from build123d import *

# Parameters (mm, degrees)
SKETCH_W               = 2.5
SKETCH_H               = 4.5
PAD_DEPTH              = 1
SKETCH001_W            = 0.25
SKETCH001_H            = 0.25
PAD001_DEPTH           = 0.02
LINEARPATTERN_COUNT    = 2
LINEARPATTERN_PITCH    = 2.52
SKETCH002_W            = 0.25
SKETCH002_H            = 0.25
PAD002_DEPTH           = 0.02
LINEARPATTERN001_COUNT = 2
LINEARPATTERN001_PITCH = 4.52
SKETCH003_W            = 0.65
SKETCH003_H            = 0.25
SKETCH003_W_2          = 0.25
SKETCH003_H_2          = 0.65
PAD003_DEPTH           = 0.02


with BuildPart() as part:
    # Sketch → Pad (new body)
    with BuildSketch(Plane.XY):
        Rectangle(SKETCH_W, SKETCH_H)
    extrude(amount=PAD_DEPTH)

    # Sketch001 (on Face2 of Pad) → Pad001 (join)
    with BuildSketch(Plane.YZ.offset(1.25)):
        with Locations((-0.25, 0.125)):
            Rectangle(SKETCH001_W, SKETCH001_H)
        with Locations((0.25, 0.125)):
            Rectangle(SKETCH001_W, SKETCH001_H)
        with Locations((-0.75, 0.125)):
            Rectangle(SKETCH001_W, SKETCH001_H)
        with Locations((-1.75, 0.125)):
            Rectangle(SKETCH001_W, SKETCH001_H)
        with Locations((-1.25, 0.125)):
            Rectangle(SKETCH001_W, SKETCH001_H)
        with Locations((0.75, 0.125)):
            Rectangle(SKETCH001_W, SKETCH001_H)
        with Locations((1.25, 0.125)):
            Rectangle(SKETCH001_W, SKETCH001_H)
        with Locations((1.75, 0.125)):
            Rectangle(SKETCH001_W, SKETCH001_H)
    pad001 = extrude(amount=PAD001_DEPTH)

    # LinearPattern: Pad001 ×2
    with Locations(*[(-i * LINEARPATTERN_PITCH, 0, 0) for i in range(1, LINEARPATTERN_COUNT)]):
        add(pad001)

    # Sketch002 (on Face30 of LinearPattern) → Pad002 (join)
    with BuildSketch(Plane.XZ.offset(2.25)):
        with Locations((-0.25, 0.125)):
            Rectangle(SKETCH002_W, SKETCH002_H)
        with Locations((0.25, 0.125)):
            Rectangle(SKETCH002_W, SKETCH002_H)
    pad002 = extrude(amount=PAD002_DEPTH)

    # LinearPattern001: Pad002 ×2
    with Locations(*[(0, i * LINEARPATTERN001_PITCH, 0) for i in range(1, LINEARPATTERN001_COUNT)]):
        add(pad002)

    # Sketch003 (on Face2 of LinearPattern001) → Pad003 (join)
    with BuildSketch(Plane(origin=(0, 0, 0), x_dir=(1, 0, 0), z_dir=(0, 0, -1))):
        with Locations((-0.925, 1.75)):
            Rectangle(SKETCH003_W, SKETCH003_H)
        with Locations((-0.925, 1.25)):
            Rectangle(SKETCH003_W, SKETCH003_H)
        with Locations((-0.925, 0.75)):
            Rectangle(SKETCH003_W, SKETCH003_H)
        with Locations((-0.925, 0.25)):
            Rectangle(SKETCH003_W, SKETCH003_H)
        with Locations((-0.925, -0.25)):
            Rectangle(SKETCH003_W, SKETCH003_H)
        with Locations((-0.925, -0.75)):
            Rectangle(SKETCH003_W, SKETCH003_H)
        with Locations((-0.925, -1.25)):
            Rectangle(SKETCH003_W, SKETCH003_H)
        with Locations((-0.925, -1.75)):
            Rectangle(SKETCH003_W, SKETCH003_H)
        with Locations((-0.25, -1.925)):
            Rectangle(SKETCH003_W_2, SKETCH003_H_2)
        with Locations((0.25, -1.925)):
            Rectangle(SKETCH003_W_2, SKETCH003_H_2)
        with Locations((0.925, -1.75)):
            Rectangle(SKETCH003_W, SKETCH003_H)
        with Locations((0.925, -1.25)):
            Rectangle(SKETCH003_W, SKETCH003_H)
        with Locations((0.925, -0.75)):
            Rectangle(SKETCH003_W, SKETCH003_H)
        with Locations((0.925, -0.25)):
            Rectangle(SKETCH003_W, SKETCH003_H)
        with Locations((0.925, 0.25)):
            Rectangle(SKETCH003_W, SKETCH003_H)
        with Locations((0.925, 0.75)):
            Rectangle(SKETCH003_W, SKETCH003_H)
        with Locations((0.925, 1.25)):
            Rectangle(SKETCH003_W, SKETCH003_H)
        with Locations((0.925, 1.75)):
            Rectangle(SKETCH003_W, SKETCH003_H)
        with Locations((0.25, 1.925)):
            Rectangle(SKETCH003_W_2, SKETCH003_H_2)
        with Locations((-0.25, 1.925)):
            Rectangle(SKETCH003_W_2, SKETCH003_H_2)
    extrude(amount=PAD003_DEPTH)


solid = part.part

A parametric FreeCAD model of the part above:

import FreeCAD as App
import Part
import Sketcher
from FreeCAD import Vector
Q = App.Units.Quantity

doc = App.newDocument("Part")
body = doc.addObject("PartDesign::Body", "Body")

sketch1 = doc.addObject("Sketcher::SketchObject", "Sketch")
body.addObject(sketch1)
sketch1.AttachmentSupport = (doc.XY_Plane, [""])
sketch1.MapMode = "FlatFace"
sketch1.addGeometry(Part.LineSegment(Vector(-1.2, 2.2, 0), Vector(-1.2, -2.2, 0)), False)
sketch1.addGeometry(Part.LineSegment(Vector(-1.2, -2.2, 0), Vector(1.2, -2.2, 0)), False)
sketch1.addGeometry(Part.LineSegment(Vector(1.2, -2.2, 0), Vector(1.2, 2.2, 0)), False)
sketch1.addGeometry(Part.LineSegment(Vector(1.2, 2.2, 0), Vector(-1.2, 2.2, 0)), False)
sketch1.addConstraint(Sketcher.Constraint("Coincident", 0, 2, 1, 1))
sketch1.addConstraint(Sketcher.Constraint("Coincident", 1, 2, 2, 1))
sketch1.addConstraint(Sketcher.Constraint("Coincident", 2, 2, 3, 1))
sketch1.addConstraint(Sketcher.Constraint("Coincident", 3, 2, 0, 1))
sketch1.addConstraint(Sketcher.Constraint("Vertical", 0))
sketch1.addConstraint(Sketcher.Constraint("Horizontal", 1))
sketch1.addConstraint(Sketcher.Constraint("Vertical", 2))
sketch1.addConstraint(Sketcher.Constraint("Horizontal", 3))
sketch1.addConstraint(Sketcher.Constraint("Symmetric", 0, 2, 2, 2, -1, 1))
sketch1.addConstraint(Sketcher.Constraint("DistanceX", 1, 1, 1, 2, Q("2.5 mm")))
sketch1.addConstraint(Sketcher.Constraint("DistanceY", 0, 2, 0, 1, Q("4.5 mm")))
pad1 = doc.addObject("PartDesign::Pad", "Pad")
body.addObject(pad1)
pad1.Profile = sketch1
pad1.Length = 1

sketch2 = doc.addObject("Sketcher::SketchObject", "Sketch001")
body.addObject(sketch2)
sketch2.AttachmentSupport = (doc.YZ_Plane, [""])
sketch2.MapMode = "FlatFace"
sketch2.AttachmentOffset = App.Placement(Vector(0, 0, 1.25), App.Rotation())
sketch2.addGeometry(Part.LineSegment(Vector(-0.38, 0.25, 0), Vector(-0.38, 0, 0)), False)
sketch2.addGeometry(Part.LineSegment(Vector(-0.38, 0, 0), Vector(-0.12, 0, 0)), False)
sketch2.addGeometry(Part.LineSegment(Vector(-0.12, 0, 0), Vector(-0.12, 0.25, 0)), False)
sketch2.addGeometry(Part.LineSegment(Vector(-0.12, 0.25, 0), Vector(-0.38, 0.25, 0)), False)
sketch2.addGeometry(Part.LineSegment(Vector(0.12, 0.25, 0), Vector(0.12, 0, 0)), False)
sketch2.addGeometry(Part.LineSegment(Vector(0.12, 0, 0), Vector(0.38, 0, 0)), False)
sketch2.addGeometry(Part.LineSegment(Vector(0.38, 0, 0), Vector(0.38, 0.25, 0)), False)
sketch2.addGeometry(Part.LineSegment(Vector(0.38, 0.25, 0), Vector(0.12, 0.25, 0)), False)
sketch2.addGeometry(Part.LineSegment(Vector(-0.88, 0.25, 0), Vector(-0.88, 0, 0)), False)
sketch2.addGeometry(Part.LineSegment(Vector(-0.88, 0, 0), Vector(-0.62, 0, 0)), False)
sketch2.addGeometry(Part.LineSegment(Vector(-0.62, 0, 0), Vector(-0.62, 0.25, 0)), False)
sketch2.addGeometry(Part.LineSegment(Vector(-0.62, 0.25, 0), Vector(-0.88, 0.25, 0)), False)
sketch2.addGeometry(Part.LineSegment(Vector(-1.88, 0.25, 0), Vector(-1.88, 0, 0)), False)
sketch2.addGeometry(Part.LineSegment(Vector(-1.88, 0, 0), Vector(-1.62, 0, 0)), False)
sketch2.addGeometry(Part.LineSegment(Vector(-1.62, 0, 0), Vector(-1.62, 0.25, 0)), False)
sketch2.addGeometry(Part.LineSegment(Vector(-1.62, 0.25, 0), Vector(-1.88, 0.25, 0)), False)
sketch2.addGeometry(Part.LineSegment(Vector(-1.38, 0.25, 0), Vector(-1.38, 0, 0)), False)
sketch2.addGeometry(Part.LineSegment(Vector(-1.38, 0, 0), Vector(-1.12, 0, 0)), False)
sketch2.addGeometry(Part.LineSegment(Vector(-1.12, 0, 0), Vector(-1.12, 0.25, 0)), False)
sketch2.addGeometry(Part.LineSegment(Vector(-1.12, 0.25, 0), Vector(-1.38, 0.25, 0)), False)
sketch2.addGeometry(Part.LineSegment(Vector(0.62, 0.25, 0), Vector(0.62, 0, 0)), False)
sketch2.addGeometry(Part.LineSegment(Vector(0.62, 0, 0), Vector(0.88, 0, 0)), False)
sketch2.addGeometry(Part.LineSegment(Vector(0.88, 0, 0), Vector(0.88, 0.25, 0)), False)
sketch2.addGeometry(Part.LineSegment(Vector(0.88, 0.25, 0), Vector(0.62, 0.25, 0)), False)
sketch2.addGeometry(Part.LineSegment(Vector(1.12, 0.25, 0), Vector(1.12, 0, 0)), False)
sketch2.addGeometry(Part.LineSegment(Vector(1.12, 0, 0), Vector(1.38, 0, 0)), False)
sketch2.addGeometry(Part.LineSegment(Vector(1.38, 0, 0), Vector(1.38, 0.25, 0)), False)
sketch2.addGeometry(Part.LineSegment(Vector(1.38, 0.25, 0), Vector(1.12, 0.25, 0)), False)
sketch2.addGeometry(Part.LineSegment(Vector(1.62, 0.25, 0), Vector(1.62, 0, 0)), False)
sketch2.addGeometry(Part.LineSegment(Vector(1.62, 0, 0), Vector(1.88, 0, 0)), False)
sketch2.addGeometry(Part.LineSegment(Vector(1.88, 0, 0), Vector(1.88, 0.25, 0)), False)
sketch2.addGeometry(Part.LineSegment(Vector(1.88, 0.25, 0), Vector(1.62, 0.25, 0)), False)
sketch2.addConstraint(Sketcher.Constraint("Coincident", 0, 2, 1, 1))
sketch2.addConstraint(Sketcher.Constraint("Coincident", 1, 2, 2, 1))
sketch2.addConstraint(Sketcher.Constraint("Coincident", 2, 2, 3, 1))
sketch2.addConstraint(Sketcher.Constraint("Coincident", 3, 2, 0, 1))
sketch2.addConstraint(Sketcher.Constraint("Coincident", 4, 2, 5, 1))
sketch2.addConstraint(Sketcher.Constraint("Coincident", 5, 2, 6, 1))
sketch2.addConstraint(Sketcher.Constraint("Coincident", 6, 2, 7, 1))
sketch2.addConstraint(Sketcher.Constraint("Coincident", 7, 2, 4, 1))
sketch2.addConstraint(Sketcher.Constraint("Coincident", 8, 2, 9, 1))
sketch2.addConstraint(Sketcher.Constraint("Coincident", 9, 2, 10, 1))
sketch2.addConstraint(Sketcher.Constraint("Coincident", 10, 2, 11, 1))
sketch2.addConstraint(Sketcher.Constraint("Coincident", 11, 2, 8, 1))
sketch2.addConstraint(Sketcher.Constraint("Coincident", 12, 2, 13, 1))
sketch2.addConstraint(Sketcher.Constraint("Coincident", 13, 2, 14, 1))
sketch2.addConstraint(Sketcher.Constraint("Coincident", 14, 2, 15, 1))
sketch2.addConstraint(Sketcher.Constraint("Coincident", 15, 2, 12, 1))
sketch2.addConstraint(Sketcher.Constraint("Coincident", 16, 2, 17, 1))
sketch2.addConstraint(Sketcher.Constraint("Coincident", 17, 2, 18, 1))
sketch2.addConstraint(Sketcher.Constraint("Coincident", 18, 2, 19, 1))
sketch2.addConstraint(Sketcher.Constraint("Coincident", 19, 2, 16, 1))
sketch2.addConstraint(Sketcher.Constraint("Coincident", 20, 2, 21, 1))
sketch2.addConstraint(Sketcher.Constraint("Coincident", 21, 2, 22, 1))
sketch2.addConstraint(Sketcher.Constraint("Coincident", 22, 2, 23, 1))
sketch2.addConstraint(Sketcher.Constraint("Coincident", 23, 2, 20, 1))
sketch2.addConstraint(Sketcher.Constraint("Coincident", 24, 2, 25, 1))
sketch2.addConstraint(Sketcher.Constraint("Coincident", 25, 2, 26, 1))
sketch2.addConstraint(Sketcher.Constraint("Coincident", 26, 2, 27, 1))
sketch2.addConstraint(Sketcher.Constraint("Coincident", 27, 2, 24, 1))
sketch2.addConstraint(Sketcher.Constraint("Coincident", 28, 2, 29, 1))
sketch2.addConstraint(Sketcher.Constraint("Coincident", 29, 2, 30, 1))
sketch2.addConstraint(Sketcher.Constraint("Coincident", 30, 2, 31, 1))
sketch2.addConstraint(Sketcher.Constraint("Coincident", 31, 2, 28, 1))
sketch2.addConstraint(Sketcher.Constraint("Vertical", 0))
sketch2.addConstraint(Sketcher.Constraint("Horizontal", 1))
sketch2.addConstraint(Sketcher.Constraint("Vertical", 2))
sketch2.addConstraint(Sketcher.Constraint("Horizontal", 3))
sketch2.addConstraint(Sketcher.Constraint("Vertical", 4))
sketch2.addConstraint(Sketcher.Constraint("Horizontal", 5))
sketch2.addConstraint(Sketcher.Constraint("Vertical", 6))
sketch2.addConstraint(Sketcher.Constraint("Horizontal", 7))
sketch2.addConstraint(Sketcher.Constraint("Vertical", 8))
sketch2.addConstraint(Sketcher.Constraint("Horizontal", 9))
sketch2.addConstraint(Sketcher.Constraint("Vertical", 10))
sketch2.addConstraint(Sketcher.Constraint("Horizontal", 11))
sketch2.addConstraint(Sketcher.Constraint("Vertical", 12))
sketch2.addConstraint(Sketcher.Constraint("Horizontal", 13))
sketch2.addConstraint(Sketcher.Constraint("Vertical", 14))
sketch2.addConstraint(Sketcher.Constraint("Horizontal", 15))
sketch2.addConstraint(Sketcher.Constraint("Vertical", 16))
sketch2.addConstraint(Sketcher.Constraint("Horizontal", 17))
sketch2.addConstraint(Sketcher.Constraint("Vertical", 18))
sketch2.addConstraint(Sketcher.Constraint("Horizontal", 19))
sketch2.addConstraint(Sketcher.Constraint("Vertical", 20))
sketch2.addConstraint(Sketcher.Constraint("Horizontal", 21))
sketch2.addConstraint(Sketcher.Constraint("Vertical", 22))
sketch2.addConstraint(Sketcher.Constraint("Horizontal", 23))
sketch2.addConstraint(Sketcher.Constraint("Vertical", 24))
sketch2.addConstraint(Sketcher.Constraint("Horizontal", 25))
sketch2.addConstraint(Sketcher.Constraint("Vertical", 26))
sketch2.addConstraint(Sketcher.Constraint("Horizontal", 27))
sketch2.addConstraint(Sketcher.Constraint("Vertical", 28))
sketch2.addConstraint(Sketcher.Constraint("Horizontal", 29))
sketch2.addConstraint(Sketcher.Constraint("Vertical", 30))
sketch2.addConstraint(Sketcher.Constraint("Horizontal", 31))
sketch2.addConstraint(Sketcher.Constraint("Symmetric", 1, 2, 4, 2, -1, 1))
sketch2.addConstraint(Sketcher.Constraint("Symmetric", 9, 2, 20, 2, -1, 1))
sketch2.addConstraint(Sketcher.Constraint("Symmetric", 17, 2, 24, 2, -1, 1))
sketch2.addConstraint(Sketcher.Constraint("Symmetric", 13, 2, 28, 2, -1, 1))
sketch2.addConstraint(Sketcher.Constraint("Symmetric", 0, 2, 5, 2, -2))
sketch2.addConstraint(Sketcher.Constraint("Symmetric", 8, 2, 21, 2, -2))
sketch2.addConstraint(Sketcher.Constraint("Symmetric", 16, 2, 25, 2, -2))
sketch2.addConstraint(Sketcher.Constraint("Symmetric", 12, 2, 29, 2, -2))
sketch2.addConstraint(Sketcher.Constraint("Horizontal", 3, 2, 6, 2))
sketch2.addConstraint(Sketcher.Constraint("Horizontal", 7, 2, 10, 2))
sketch2.addConstraint(Sketcher.Constraint("Horizontal", 11, 2, 14, 2))
sketch2.addConstraint(Sketcher.Constraint("Horizontal", 15, 2, 18, 2))
sketch2.addConstraint(Sketcher.Constraint("Horizontal", 19, 2, 22, 2))
sketch2.addConstraint(Sketcher.Constraint("Horizontal", 23, 2, 26, 2))
sketch2.addConstraint(Sketcher.Constraint("Horizontal", 27, 2, 30, 2))
sketch2.addConstraint(Sketcher.Constraint("Equal", 7, 9))
sketch2.addConstraint(Sketcher.Constraint("Equal", 11, 13))
sketch2.addConstraint(Sketcher.Constraint("Equal", 15, 17))
sketch2.addConstraint(Sketcher.Constraint("Equal", 31, 0))
sketch2.addConstraint(Sketcher.Constraint("DistanceX", 8, 2, 4, 2, Q("1 mm")))
sketch2.addConstraint(Sketcher.Constraint("DistanceX", 12, 2, 8, 2, Q("1 mm")))
sketch2.addConstraint(Sketcher.Constraint("DistanceX", 1, 1, 1, 2, Q("0.25 mm")))
sketch2.addConstraint(Sketcher.Constraint("DistanceX", 0, 2, 4, 2, Q("0.5 mm")))
sketch2.addConstraint(Sketcher.Constraint("DistanceX", 16, 2, 8, 2, Q("0.5 mm")))
pad2 = doc.addObject("PartDesign::Pad", "Pad001")
body.addObject(pad2)
pad2.Profile = sketch2
pad2.Length = 0.02
doc.recompute()

linearpattern = doc.addObject("PartDesign::LinearPattern", "LinearPattern")
body.addObject(linearpattern)
linearpattern.Originals = [pad2]
linearpattern.Direction = (doc.X_Axis, [""])
linearpattern.Mode = "offset"
linearpattern.Offset = 2.52
linearpattern.Occurrences = 2
linearpattern.Reversed = True
body.Tip = linearpattern

sketch3 = doc.addObject("Sketcher::SketchObject", "Sketch002")
body.addObject(sketch3)
sketch3.AttachmentSupport = (doc.XZ_Plane, [""])
sketch3.MapMode = "FlatFace"
sketch3.AttachmentOffset = App.Placement(Vector(0, 0, 2.25), App.Rotation())
sketch3.addGeometry(Part.LineSegment(Vector(-0.38, 0.25, 0), Vector(-0.38, 0, 0)), False)
sketch3.addGeometry(Part.LineSegment(Vector(-0.38, 0, 0), Vector(-0.12, 0, 0)), False)
sketch3.addGeometry(Part.LineSegment(Vector(-0.12, 0, 0), Vector(-0.12, 0.25, 0)), False)
sketch3.addGeometry(Part.LineSegment(Vector(-0.12, 0.25, 0), Vector(-0.38, 0.25, 0)), False)
sketch3.addGeometry(Part.LineSegment(Vector(0.12, 0.25, 0), Vector(0.12, 0, 0)), False)
sketch3.addGeometry(Part.LineSegment(Vector(0.12, 0, 0), Vector(0.38, 0, 0)), False)
sketch3.addGeometry(Part.LineSegment(Vector(0.38, 0, 0), Vector(0.38, 0.25, 0)), False)
sketch3.addGeometry(Part.LineSegment(Vector(0.38, 0.25, 0), Vector(0.12, 0.25, 0)), False)
sketch3.addConstraint(Sketcher.Constraint("Coincident", 0, 2, 1, 1))
sketch3.addConstraint(Sketcher.Constraint("Coincident", 1, 2, 2, 1))
sketch3.addConstraint(Sketcher.Constraint("Coincident", 2, 2, 3, 1))
sketch3.addConstraint(Sketcher.Constraint("Coincident", 3, 2, 0, 1))
sketch3.addConstraint(Sketcher.Constraint("Coincident", 4, 2, 5, 1))
sketch3.addConstraint(Sketcher.Constraint("Coincident", 5, 2, 6, 1))
sketch3.addConstraint(Sketcher.Constraint("Coincident", 6, 2, 7, 1))
sketch3.addConstraint(Sketcher.Constraint("Coincident", 7, 2, 4, 1))
sketch3.addConstraint(Sketcher.Constraint("Vertical", 0))
sketch3.addConstraint(Sketcher.Constraint("Horizontal", 1))
sketch3.addConstraint(Sketcher.Constraint("Vertical", 2))
sketch3.addConstraint(Sketcher.Constraint("Horizontal", 3))
sketch3.addConstraint(Sketcher.Constraint("Vertical", 4))
sketch3.addConstraint(Sketcher.Constraint("Horizontal", 5))
sketch3.addConstraint(Sketcher.Constraint("Vertical", 6))
sketch3.addConstraint(Sketcher.Constraint("Horizontal", 7))
sketch3.addConstraint(Sketcher.Constraint("Symmetric", 1, 2, 4, 2, -1, 1))
sketch3.addConstraint(Sketcher.Constraint("Symmetric", 0, 2, 5, 2, -2))
sketch3.addConstraint(Sketcher.Constraint("Horizontal", 3, 2, 6, 2))
sketch3.addConstraint(Sketcher.Constraint("Equal", 7, 0))
sketch3.addConstraint(Sketcher.Constraint("DistanceX", 1, 1, 1, 2, Q("0.25 mm")))
sketch3.addConstraint(Sketcher.Constraint("DistanceX", 0, 2, 4, 2, Q("0.5 mm")))
pad3 = doc.addObject("PartDesign::Pad", "Pad002")
body.addObject(pad3)
pad3.Profile = sketch3
pad3.Length = 0.02
doc.recompute()

linearpattern2 = doc.addObject("PartDesign::LinearPattern", "LinearPattern001")
body.addObject(linearpattern2)
linearpattern2.Originals = [pad3]
linearpattern2.Direction = (doc.Y_Axis, [""])
linearpattern2.Mode = "offset"
linearpattern2.Offset = 4.52
linearpattern2.Occurrences = 2
body.Tip = linearpattern2

sketch4 = doc.addObject("Sketcher::SketchObject", "Sketch003")
body.addObject(sketch4)
sketch4.AttachmentSupport = (doc.XY_Plane, [""])
sketch4.MapMode = "FlatFace"
sketch4.addGeometry(Part.LineSegment(Vector(-1.25, -1.88, 0), Vector(-1.25, -1.62, 0)), False)
sketch4.addGeometry(Part.LineSegment(Vector(-1.25, -1.62, 0), Vector(-0.6, -1.62, 0)), False)
sketch4.addGeometry(Part.LineSegment(Vector(-0.6, -1.62, 0), Vector(-0.6, -1.88, 0)), False)
sketch4.addGeometry(Part.LineSegment(Vector(-0.6, -1.88, 0), Vector(-1.25, -1.88, 0)), False)
sketch4.addGeometry(Part.LineSegment(Vector(-1.25, -1.38, 0), Vector(-1.25, -1.12, 0)), False)
sketch4.addGeometry(Part.LineSegment(Vector(-1.25, -1.12, 0), Vector(-0.6, -1.12, 0)), False)
sketch4.addGeometry(Part.LineSegment(Vector(-0.6, -1.12, 0), Vector(-0.6, -1.38, 0)), False)
sketch4.addGeometry(Part.LineSegment(Vector(-0.6, -1.38, 0), Vector(-1.25, -1.38, 0)), False)
sketch4.addGeometry(Part.LineSegment(Vector(-1.25, -0.88, 0), Vector(-1.25, -0.62, 0)), False)
sketch4.addGeometry(Part.LineSegment(Vector(-1.25, -0.62, 0), Vector(-0.6, -0.62, 0)), False)
sketch4.addGeometry(Part.LineSegment(Vector(-0.6, -0.62, 0), Vector(-0.6, -0.88, 0)), False)
sketch4.addGeometry(Part.LineSegment(Vector(-0.6, -0.88, 0), Vector(-1.25, -0.88, 0)), False)
sketch4.addGeometry(Part.LineSegment(Vector(-1.25, -0.38, 0), Vector(-1.25, -0.12, 0)), False)
sketch4.addGeometry(Part.LineSegment(Vector(-1.25, -0.12, 0), Vector(-0.6, -0.12, 0)), False)
sketch4.addGeometry(Part.LineSegment(Vector(-0.6, -0.12, 0), Vector(-0.6, -0.38, 0)), False)
sketch4.addGeometry(Part.LineSegment(Vector(-0.6, -0.38, 0), Vector(-1.25, -0.38, 0)), False)
sketch4.addGeometry(Part.LineSegment(Vector(-1.25, 0.12, 0), Vector(-1.25, 0.38, 0)), False)
sketch4.addGeometry(Part.LineSegment(Vector(-1.25, 0.38, 0), Vector(-0.6, 0.38, 0)), False)
sketch4.addGeometry(Part.LineSegment(Vector(-0.6, 0.38, 0), Vector(-0.6, 0.12, 0)), False)
sketch4.addGeometry(Part.LineSegment(Vector(-0.6, 0.12, 0), Vector(-1.25, 0.12, 0)), False)
sketch4.addGeometry(Part.LineSegment(Vector(-1.25, 0.62, 0), Vector(-1.25, 0.88, 0)), False)
sketch4.addGeometry(Part.LineSegment(Vector(-1.25, 0.88, 0), Vector(-0.6, 0.88, 0)), False)
sketch4.addGeometry(Part.LineSegment(Vector(-0.6, 0.88, 0), Vector(-0.6, 0.62, 0)), False)
sketch4.addGeometry(Part.LineSegment(Vector(-0.6, 0.62, 0), Vector(-1.25, 0.62, 0)), False)
sketch4.addGeometry(Part.LineSegment(Vector(-1.25, 1.12, 0), Vector(-1.25, 1.38, 0)), False)
sketch4.addGeometry(Part.LineSegment(Vector(-1.25, 1.38, 0), Vector(-0.6, 1.38, 0)), False)
sketch4.addGeometry(Part.LineSegment(Vector(-0.6, 1.38, 0), Vector(-0.6, 1.12, 0)), False)
sketch4.addGeometry(Part.LineSegment(Vector(-0.6, 1.12, 0), Vector(-1.25, 1.12, 0)), False)
sketch4.addGeometry(Part.LineSegment(Vector(-1.25, 1.62, 0), Vector(-1.25, 1.88, 0)), False)
sketch4.addGeometry(Part.LineSegment(Vector(-1.25, 1.88, 0), Vector(-0.6, 1.88, 0)), False)
sketch4.addGeometry(Part.LineSegment(Vector(-0.6, 1.88, 0), Vector(-0.6, 1.62, 0)), False)
sketch4.addGeometry(Part.LineSegment(Vector(-0.6, 1.62, 0), Vector(-1.25, 1.62, 0)), False)
sketch4.addGeometry(Part.LineSegment(Vector(-0.38, 1.6, 0), Vector(-0.38, 2.25, 0)), False)
sketch4.addGeometry(Part.LineSegment(Vector(-0.38, 2.25, 0), Vector(-0.12, 2.25, 0)), False)
sketch4.addGeometry(Part.LineSegment(Vector(-0.12, 2.25, 0), Vector(-0.12, 1.6, 0)), False)
sketch4.addGeometry(Part.LineSegment(Vector(-0.12, 1.6, 0), Vector(-0.38, 1.6, 0)), False)
sketch4.addGeometry(Part.LineSegment(Vector(0.12, 1.6, 0), Vector(0.12, 2.25, 0)), False)
sketch4.addGeometry(Part.LineSegment(Vector(0.12, 2.25, 0), Vector(0.38, 2.25, 0)), False)
sketch4.addGeometry(Part.LineSegment(Vector(0.38, 2.25, 0), Vector(0.38, 1.6, 0)), False)
sketch4.addGeometry(Part.LineSegment(Vector(0.38, 1.6, 0), Vector(0.12, 1.6, 0)), False)
sketch4.addGeometry(Part.LineSegment(Vector(0.6, 1.62, 0), Vector(0.6, 1.88, 0)), False)
sketch4.addGeometry(Part.LineSegment(Vector(0.6, 1.88, 0), Vector(1.25, 1.88, 0)), False)
sketch4.addGeometry(Part.LineSegment(Vector(1.25, 1.88, 0), Vector(1.25, 1.62, 0)), False)
sketch4.addGeometry(Part.LineSegment(Vector(1.25, 1.62, 0), Vector(0.6, 1.62, 0)), False)
sketch4.addGeometry(Part.LineSegment(Vector(0.6, 1.12, 0), Vector(0.6, 1.38, 0)), False)
sketch4.addGeometry(Part.LineSegment(Vector(0.6, 1.38, 0), Vector(1.25, 1.38, 0)), False)
sketch4.addGeometry(Part.LineSegment(Vector(1.25, 1.38, 0), Vector(1.25, 1.12, 0)), False)
sketch4.addGeometry(Part.LineSegment(Vector(1.25, 1.12, 0), Vector(0.6, 1.12, 0)), False)
sketch4.addGeometry(Part.LineSegment(Vector(0.6, 0.62, 0), Vector(0.6, 0.88, 0)), False)
sketch4.addGeometry(Part.LineSegment(Vector(0.6, 0.88, 0), Vector(1.25, 0.88, 0)), False)
sketch4.addGeometry(Part.LineSegment(Vector(1.25, 0.88, 0), Vector(1.25, 0.62, 0)), False)
sketch4.addGeometry(Part.LineSegment(Vector(1.25, 0.62, 0), Vector(0.6, 0.62, 0)), False)
sketch4.addGeometry(Part.LineSegment(Vector(0.6, 0.12, 0), Vector(0.6, 0.38, 0)), False)
sketch4.addGeometry(Part.LineSegment(Vector(0.6, 0.38, 0), Vector(1.25, 0.38, 0)), False)
sketch4.addGeometry(Part.LineSegment(Vector(1.25, 0.38, 0), Vector(1.25, 0.12, 0)), False)
sketch4.addGeometry(Part.LineSegment(Vector(1.25, 0.12, 0), Vector(0.6, 0.12, 0)), False)
sketch4.addGeometry(Part.LineSegment(Vector(0.6, -0.38, 0), Vector(0.6, -0.12, 0)), False)
sketch4.addGeometry(Part.LineSegment(Vector(0.6, -0.12, 0), Vector(1.25, -0.12, 0)), False)
sketch4.addGeometry(Part.LineSegment(Vector(1.25, -0.12, 0), Vector(1.25, -0.38, 0)), False)
sketch4.addGeometry(Part.LineSegment(Vector(1.25, -0.38, 0), Vector(0.6, -0.38, 0)), False)
sketch4.addGeometry(Part.LineSegment(Vector(0.6, -0.88, 0), Vector(0.6, -0.62, 0)), False)
sketch4.addGeometry(Part.LineSegment(Vector(0.6, -0.62, 0), Vector(1.25, -0.62, 0)), False)
sketch4.addGeometry(Part.LineSegment(Vector(1.25, -0.62, 0), Vector(1.25, -0.88, 0)), False)
sketch4.addGeometry(Part.LineSegment(Vector(1.25, -0.88, 0), Vector(0.6, -0.88, 0)), False)
sketch4.addGeometry(Part.LineSegment(Vector(0.6, -1.38, 0), Vector(0.6, -1.12, 0)), False)
sketch4.addGeometry(Part.LineSegment(Vector(0.6, -1.12, 0), Vector(1.25, -1.12, 0)), False)
sketch4.addGeometry(Part.LineSegment(Vector(1.25, -1.12, 0), Vector(1.25, -1.38, 0)), False)
sketch4.addGeometry(Part.LineSegment(Vector(1.25, -1.38, 0), Vector(0.6, -1.38, 0)), False)
sketch4.addGeometry(Part.LineSegment(Vector(0.6, -1.88, 0), Vector(0.6, -1.62, 0)), False)
sketch4.addGeometry(Part.LineSegment(Vector(0.6, -1.62, 0), Vector(1.25, -1.62, 0)), False)
sketch4.addGeometry(Part.LineSegment(Vector(1.25, -1.62, 0), Vector(1.25, -1.88, 0)), False)
sketch4.addGeometry(Part.LineSegment(Vector(1.25, -1.88, 0), Vector(0.6, -1.88, 0)), False)
sketch4.addGeometry(Part.LineSegment(Vector(0.12, -2.25, 0), Vector(0.12, -1.6, 0)), False)
sketch4.addGeometry(Part.LineSegment(Vector(0.12, -1.6, 0), Vector(0.38, -1.6, 0)), False)
sketch4.addGeometry(Part.LineSegment(Vector(0.38, -1.6, 0), Vector(0.38, -2.25, 0)), False)
sketch4.addGeometry(Part.LineSegment(Vector(0.38, -2.25, 0), Vector(0.12, -2.25, 0)), False)
sketch4.addGeometry(Part.LineSegment(Vector(-0.38, -2.25, 0), Vector(-0.38, -1.6, 0)), False)
sketch4.addGeometry(Part.LineSegment(Vector(-0.38, -1.6, 0), Vector(-0.12, -1.6, 0)), False)
sketch4.addGeometry(Part.LineSegment(Vector(-0.12, -1.6, 0), Vector(-0.12, -2.25, 0)), False)
sketch4.addGeometry(Part.LineSegment(Vector(-0.12, -2.25, 0), Vector(-0.38, -2.25, 0)), False)
sketch4.addConstraint(Sketcher.Constraint("Coincident", 0, 2, 1, 1))
sketch4.addConstraint(Sketcher.Constraint("Coincident", 1, 2, 2, 1))
sketch4.addConstraint(Sketcher.Constraint("Coincident", 2, 2, 3, 1))
sketch4.addConstraint(Sketcher.Constraint("Coincident", 3, 2, 0, 1))
sketch4.addConstraint(Sketcher.Constraint("Coincident", 4, 2, 5, 1))
sketch4.addConstraint(Sketcher.Constraint("Coincident", 5, 2, 6, 1))
sketch4.addConstraint(Sketcher.Constraint("Coincident", 6, 2, 7, 1))
sketch4.addConstraint(Sketcher.Constraint("Coincident", 7, 2, 4, 1))
sketch4.addConstraint(Sketcher.Constraint("Coincident", 8, 2, 9, 1))
sketch4.addConstraint(Sketcher.Constraint("Coincident", 9, 2, 10, 1))
sketch4.addConstraint(Sketcher.Constraint("Coincident", 10, 2, 11, 1))
sketch4.addConstraint(Sketcher.Constraint("Coincident", 11, 2, 8, 1))
sketch4.addConstraint(Sketcher.Constraint("Coincident", 12, 2, 13, 1))
sketch4.addConstraint(Sketcher.Constraint("Coincident", 13, 2, 14, 1))
sketch4.addConstraint(Sketcher.Constraint("Coincident", 14, 2, 15, 1))
sketch4.addConstraint(Sketcher.Constraint("Coincident", 15, 2, 12, 1))
sketch4.addConstraint(Sketcher.Constraint("Coincident", 16, 2, 17, 1))
sketch4.addConstraint(Sketcher.Constraint("Coincident", 17, 2, 18, 1))
sketch4.addConstraint(Sketcher.Constraint("Coincident", 18, 2, 19, 1))
sketch4.addConstraint(Sketcher.Constraint("Coincident", 19, 2, 16, 1))
sketch4.addConstraint(Sketcher.Constraint("Coincident", 20, 2, 21, 1))
sketch4.addConstraint(Sketcher.Constraint("Coincident", 21, 2, 22, 1))
sketch4.addConstraint(Sketcher.Constraint("Coincident", 22, 2, 23, 1))
sketch4.addConstraint(Sketcher.Constraint("Coincident", 23, 2, 20, 1))
sketch4.addConstraint(Sketcher.Constraint("Coincident", 24, 2, 25, 1))
sketch4.addConstraint(Sketcher.Constraint("Coincident", 25, 2, 26, 1))
sketch4.addConstraint(Sketcher.Constraint("Coincident", 26, 2, 27, 1))
sketch4.addConstraint(Sketcher.Constraint("Coincident", 27, 2, 24, 1))
sketch4.addConstraint(Sketcher.Constraint("Coincident", 28, 2, 29, 1))
sketch4.addConstraint(Sketcher.Constraint("Coincident", 29, 2, 30, 1))
sketch4.addConstraint(Sketcher.Constraint("Coincident", 30, 2, 31, 1))
sketch4.addConstraint(Sketcher.Constraint("Coincident", 31, 2, 28, 1))
sketch4.addConstraint(Sketcher.Constraint("Coincident", 32, 2, 33, 1))
sketch4.addConstraint(Sketcher.Constraint("Coincident", 33, 2, 34, 1))
sketch4.addConstraint(Sketcher.Constraint("Coincident", 34, 2, 35, 1))
sketch4.addConstraint(Sketcher.Constraint("Coincident", 35, 2, 32, 1))
sketch4.addConstraint(Sketcher.Constraint("Coincident", 36, 2, 37, 1))
sketch4.addConstraint(Sketcher.Constraint("Coincident", 37, 2, 38, 1))
sketch4.addConstraint(Sketcher.Constraint("Coincident", 38, 2, 39, 1))
sketch4.addConstraint(Sketcher.Constraint("Coincident", 39, 2, 36, 1))
sketch4.addConstraint(Sketcher.Constraint("Coincident", 40, 2, 41, 1))
sketch4.addConstraint(Sketcher.Constraint("Coincident", 41, 2, 42, 1))
sketch4.addConstraint(Sketcher.Constraint("Coincident", 42, 2, 43, 1))
sketch4.addConstraint(Sketcher.Constraint("Coincident", 43, 2, 40, 1))
sketch4.addConstraint(Sketcher.Constraint("Coincident", 44, 2, 45, 1))
sketch4.addConstraint(Sketcher.Constraint("Coincident", 45, 2, 46, 1))
sketch4.addConstraint(Sketcher.Constraint("Coincident", 46, 2, 47, 1))
sketch4.addConstraint(Sketcher.Constraint("Coincident", 47, 2, 44, 1))
sketch4.addConstraint(Sketcher.Constraint("Coincident", 48, 2, 49, 1))
sketch4.addConstraint(Sketcher.Constraint("Coincident", 49, 2, 50, 1))
sketch4.addConstraint(Sketcher.Constraint("Coincident", 50, 2, 51, 1))
sketch4.addConstraint(Sketcher.Constraint("Coincident", 51, 2, 48, 1))
sketch4.addConstraint(Sketcher.Constraint("Coincident", 52, 2, 53, 1))
sketch4.addConstraint(Sketcher.Constraint("Coincident", 53, 2, 54, 1))
sketch4.addConstraint(Sketcher.Constraint("Coincident", 54, 2, 55, 1))
sketch4.addConstraint(Sketcher.Constraint("Coincident", 55, 2, 52, 1))
sketch4.addConstraint(Sketcher.Constraint("Coincident", 56, 2, 57, 1))
sketch4.addConstraint(Sketcher.Constraint("Coincident", 57, 2, 58, 1))
sketch4.addConstraint(Sketcher.Constraint("Coincident", 58, 2, 59, 1))
sketch4.addConstraint(Sketcher.Constraint("Coincident", 59, 2, 56, 1))
sketch4.addConstraint(Sketcher.Constraint("Coincident", 60, 2, 61, 1))
sketch4.addConstraint(Sketcher.Constraint("Coincident", 61, 2, 62, 1))
sketch4.addConstraint(Sketcher.Constraint("Coincident", 62, 2, 63, 1))
sketch4.addConstraint(Sketcher.Constraint("Coincident", 63, 2, 60, 1))
sketch4.addConstraint(Sketcher.Constraint("Coincident", 64, 2, 65, 1))
sketch4.addConstraint(Sketcher.Constraint("Coincident", 65, 2, 66, 1))
sketch4.addConstraint(Sketcher.Constraint("Coincident", 66, 2, 67, 1))
sketch4.addConstraint(Sketcher.Constraint("Coincident", 67, 2, 64, 1))
sketch4.addConstraint(Sketcher.Constraint("Coincident", 68, 2, 69, 1))
sketch4.addConstraint(Sketcher.Constraint("Coincident", 69, 2, 70, 1))
sketch4.addConstraint(Sketcher.Constraint("Coincident", 70, 2, 71, 1))
sketch4.addConstraint(Sketcher.Constraint("Coincident", 71, 2, 68, 1))
sketch4.addConstraint(Sketcher.Constraint("Coincident", 72, 2, 73, 1))
sketch4.addConstraint(Sketcher.Constraint("Coincident", 73, 2, 74, 1))
sketch4.addConstraint(Sketcher.Constraint("Coincident", 74, 2, 75, 1))
sketch4.addConstraint(Sketcher.Constraint("Coincident", 75, 2, 72, 1))
sketch4.addConstraint(Sketcher.Constraint("Coincident", 76, 2, 77, 1))
sketch4.addConstraint(Sketcher.Constraint("Coincident", 77, 2, 78, 1))
sketch4.addConstraint(Sketcher.Constraint("Coincident", 78, 2, 79, 1))
sketch4.addConstraint(Sketcher.Constraint("Coincident", 79, 2, 76, 1))
sketch4.addConstraint(Sketcher.Constraint("Vertical", 0))
sketch4.addConstraint(Sketcher.Constraint("Horizontal", 1))
sketch4.addConstraint(Sketcher.Constraint("Vertical", 2))
sketch4.addConstraint(Sketcher.Constraint("Horizontal", 3))
sketch4.addConstraint(Sketcher.Constraint("Vertical", 4))
sketch4.addConstraint(Sketcher.Constraint("Horizontal", 5))
sketch4.addConstraint(Sketcher.Constraint("Vertical", 6))
sketch4.addConstraint(Sketcher.Constraint("Horizontal", 7))
sketch4.addConstraint(Sketcher.Constraint("Vertical", 8))
sketch4.addConstraint(Sketcher.Constraint("Horizontal", 9))
sketch4.addConstraint(Sketcher.Constraint("Vertical", 10))
sketch4.addConstraint(Sketcher.Constraint("Horizontal", 11))
sketch4.addConstraint(Sketcher.Constraint("Vertical", 12))
sketch4.addConstraint(Sketcher.Constraint("Horizontal", 13))
sketch4.addConstraint(Sketcher.Constraint("Vertical", 14))
sketch4.addConstraint(Sketcher.Constraint("Horizontal", 15))
sketch4.addConstraint(Sketcher.Constraint("Vertical", 16))
sketch4.addConstraint(Sketcher.Constraint("Horizontal", 17))
sketch4.addConstraint(Sketcher.Constraint("Vertical", 18))
sketch4.addConstraint(Sketcher.Constraint("Horizontal", 19))
sketch4.addConstraint(Sketcher.Constraint("Vertical", 20))
sketch4.addConstraint(Sketcher.Constraint("Horizontal", 21))
sketch4.addConstraint(Sketcher.Constraint("Vertical", 22))
sketch4.addConstraint(Sketcher.Constraint("Horizontal", 23))
sketch4.addConstraint(Sketcher.Constraint("Vertical", 24))
sketch4.addConstraint(Sketcher.Constraint("Horizontal", 25))
sketch4.addConstraint(Sketcher.Constraint("Vertical", 26))
sketch4.addConstraint(Sketcher.Constraint("Horizontal", 27))
sketch4.addConstraint(Sketcher.Constraint("Vertical", 28))
sketch4.addConstraint(Sketcher.Constraint("Horizontal", 29))
sketch4.addConstraint(Sketcher.Constraint("Vertical", 30))
sketch4.addConstraint(Sketcher.Constraint("Horizontal", 31))
sketch4.addConstraint(Sketcher.Constraint("Vertical", 32))
sketch4.addConstraint(Sketcher.Constraint("Horizontal", 33))
sketch4.addConstraint(Sketcher.Constraint("Vertical", 34))
sketch4.addConstraint(Sketcher.Constraint("Horizontal", 35))
sketch4.addConstraint(Sketcher.Constraint("Vertical", 36))
sketch4.addConstraint(Sketcher.Constraint("Horizontal", 37))
sketch4.addConstraint(Sketcher.Constraint("Vertical", 38))
sketch4.addConstraint(Sketcher.Constraint("Horizontal", 39))
sketch4.addConstraint(Sketcher.Constraint("Vertical", 40))
sketch4.addConstraint(Sketcher.Constraint("Horizontal", 41))
sketch4.addConstraint(Sketcher.Constraint("Vertical", 42))
sketch4.addConstraint(Sketcher.Constraint("Horizontal", 43))
sketch4.addConstraint(Sketcher.Constraint("Vertical", 44))
sketch4.addConstraint(Sketcher.Constraint("Horizontal", 45))
sketch4.addConstraint(Sketcher.Constraint("Vertical", 46))
sketch4.addConstraint(Sketcher.Constraint("Horizontal", 47))
sketch4.addConstraint(Sketcher.Constraint("Vertical", 48))
sketch4.addConstraint(Sketcher.Constraint("Horizontal", 49))
sketch4.addConstraint(Sketcher.Constraint("Vertical", 50))
sketch4.addConstraint(Sketcher.Constraint("Horizontal", 51))
sketch4.addConstraint(Sketcher.Constraint("Vertical", 52))
sketch4.addConstraint(Sketcher.Constraint("Horizontal", 53))
sketch4.addConstraint(Sketcher.Constraint("Vertical", 54))
sketch4.addConstraint(Sketcher.Constraint("Horizontal", 55))
sketch4.addConstraint(Sketcher.Constraint("Vertical", 56))
sketch4.addConstraint(Sketcher.Constraint("Horizontal", 57))
sketch4.addConstraint(Sketcher.Constraint("Vertical", 58))
sketch4.addConstraint(Sketcher.Constraint("Horizontal", 59))
sketch4.addConstraint(Sketcher.Constraint("Vertical", 60))
sketch4.addConstraint(Sketcher.Constraint("Horizontal", 61))
sketch4.addConstraint(Sketcher.Constraint("Vertical", 62))
sketch4.addConstraint(Sketcher.Constraint("Horizontal", 63))
sketch4.addConstraint(Sketcher.Constraint("Vertical", 64))
sketch4.addConstraint(Sketcher.Constraint("Horizontal", 65))
sketch4.addConstraint(Sketcher.Constraint("Vertical", 66))
sketch4.addConstraint(Sketcher.Constraint("Horizontal", 67))
sketch4.addConstraint(Sketcher.Constraint("Vertical", 68))
sketch4.addConstraint(Sketcher.Constraint("Horizontal", 69))
sketch4.addConstraint(Sketcher.Constraint("Vertical", 70))
sketch4.addConstraint(Sketcher.Constraint("Horizontal", 71))
sketch4.addConstraint(Sketcher.Constraint("Vertical", 72))
sketch4.addConstraint(Sketcher.Constraint("Horizontal", 73))
sketch4.addConstraint(Sketcher.Constraint("Vertical", 74))
sketch4.addConstraint(Sketcher.Constraint("Horizontal", 75))
sketch4.addConstraint(Sketcher.Constraint("Vertical", 76))
sketch4.addConstraint(Sketcher.Constraint("Horizontal", 77))
sketch4.addConstraint(Sketcher.Constraint("Vertical", 78))
sketch4.addConstraint(Sketcher.Constraint("Horizontal", 79))
sketch4.addConstraint(Sketcher.Constraint("Symmetric", 2, 2, 40, 2, -1, 1))
sketch4.addConstraint(Sketcher.Constraint("Symmetric", 0, 2, 42, 2, -1, 1))
sketch4.addConstraint(Sketcher.Constraint("Symmetric", 6, 2, 44, 2, -1, 1))
sketch4.addConstraint(Sketcher.Constraint("Symmetric", 4, 2, 46, 2, -1, 1))
sketch4.addConstraint(Sketcher.Constraint("Symmetric", 10, 2, 48, 2, -1, 1))
sketch4.addConstraint(Sketcher.Constraint("Symmetric", 8, 2, 50, 2, -1, 1))
sketch4.addConstraint(Sketcher.Constraint("Symmetric", 14, 2, 52, 2, -1, 1))
sketch4.addConstraint(Sketcher.Constraint("Symmetric", 12, 2, 54, 2, -1, 1))
sketch4.addConstraint(Sketcher.Constraint("Symmetric", 18, 2, 56, 2, -1, 1))
sketch4.addConstraint(Sketcher.Constraint("Symmetric", 16, 2, 58, 2, -1, 1))
sketch4.addConstraint(Sketcher.Constraint("Symmetric", 22, 2, 60, 2, -1, 1))
sketch4.addConstraint(Sketcher.Constraint("Symmetric", 20, 2, 62, 2, -1, 1))
sketch4.addConstraint(Sketcher.Constraint("Symmetric", 26, 2, 64, 2, -1, 1))
sketch4.addConstraint(Sketcher.Constraint("Symmetric", 24, 2, 66, 2, -1, 1))
sketch4.addConstraint(Sketcher.Constraint("Symmetric", 30, 2, 68, 2, -1, 1))
sketch4.addConstraint(Sketcher.Constraint("Symmetric", 28, 2, 70, 2, -1, 1))
sketch4.addConstraint(Sketcher.Constraint("Symmetric", 34, 2, 72, 2, -1, 1))
sketch4.addConstraint(Sketcher.Constraint("Symmetric", 32, 2, 74, 2, -1, 1))
sketch4.addConstraint(Sketcher.Constraint("Symmetric", 38, 2, 76, 2, -1, 1))
sketch4.addConstraint(Sketcher.Constraint("Symmetric", 36, 2, 78, 2, -1, 1))
sketch4.addConstraint(Sketcher.Constraint("Symmetric", 33, 2, 36, 2, -2))
sketch4.addConstraint(Sketcher.Constraint("Symmetric", 35, 2, 38, 2, -2))
sketch4.addConstraint(Sketcher.Constraint("Symmetric", 29, 2, 40, 2, -2))
sketch4.addConstraint(Sketcher.Constraint("Symmetric", 31, 2, 42, 2, -2))
sketch4.addConstraint(Sketcher.Constraint("Symmetric", 25, 2, 44, 2, -2))
sketch4.addConstraint(Sketcher.Constraint("Symmetric", 27, 2, 46, 2, -2))
sketch4.addConstraint(Sketcher.Constraint("Symmetric", 21, 2, 48, 2, -2))
sketch4.addConstraint(Sketcher.Constraint("Symmetric", 23, 2, 50, 2, -2))
sketch4.addConstraint(Sketcher.Constraint("Symmetric", 17, 2, 52, 2, -2))
sketch4.addConstraint(Sketcher.Constraint("Symmetric", 19, 2, 54, 2, -2))
sketch4.addConstraint(Sketcher.Constraint("Vertical", 3, 2, 4, 2))
sketch4.addConstraint(Sketcher.Constraint("Vertical", 2, 2, 5, 2))
sketch4.addConstraint(Sketcher.Constraint("Vertical", 7, 2, 8, 2))
sketch4.addConstraint(Sketcher.Constraint("Vertical", 6, 2, 9, 2))
sketch4.addConstraint(Sketcher.Constraint("Vertical", 11, 2, 12, 2))
sketch4.addConstraint(Sketcher.Constraint("Vertical", 10, 2, 13, 2))
sketch4.addConstraint(Sketcher.Constraint("Equal", 79, 0))
sketch4.addConstraint(Sketcher.Constraint("Equal", 2, 4))
sketch4.addConstraint(Sketcher.Constraint("Equal", 6, 8))
sketch4.addConstraint(Sketcher.Constraint("Equal", 10, 12))
sketch4.addConstraint(Sketcher.Constraint("Equal", 71, 32))
sketch4.addConstraint(Sketcher.Constraint("DistanceX", 1, 1, 1, 2, Q("0.65 mm")))
sketch4.addConstraint(Sketcher.Constraint("DistanceX", 33, 1, 33, 2, Q("0.25 mm")))
sketch4.addConstraint(Sketcher.Constraint("DistanceX", 1, 2, -1, 1, Q("0.6 mm")))
sketch4.addConstraint(Sketcher.Constraint("DistanceY", -1, 1, 34, 2, Q("1.6 mm")))
sketch4.addConstraint(Sketcher.Constraint("DistanceY", 0, 2, -1, 1, Q("1.625 mm")))
sketch4.addConstraint(Sketcher.Constraint("DistanceY", 4, 2, -1, 1, Q("1.125 mm")))
sketch4.addConstraint(Sketcher.Constraint("DistanceY", 8, 2, -1, 1, Q("0.625 mm")))
sketch4.addConstraint(Sketcher.Constraint("DistanceY", 12, 2, -1, 1, Q("0.125 mm")))
sketch4.addConstraint(Sketcher.Constraint("DistanceX", 32, 2, -1, 1, Q("0.375 mm")))
pad4 = doc.addObject("PartDesign::Pad", "Pad003")
body.addObject(pad4)
pad4.Profile = sketch4
pad4.Length = 0.02
pad4.Reversed = True

doc.recompute()
